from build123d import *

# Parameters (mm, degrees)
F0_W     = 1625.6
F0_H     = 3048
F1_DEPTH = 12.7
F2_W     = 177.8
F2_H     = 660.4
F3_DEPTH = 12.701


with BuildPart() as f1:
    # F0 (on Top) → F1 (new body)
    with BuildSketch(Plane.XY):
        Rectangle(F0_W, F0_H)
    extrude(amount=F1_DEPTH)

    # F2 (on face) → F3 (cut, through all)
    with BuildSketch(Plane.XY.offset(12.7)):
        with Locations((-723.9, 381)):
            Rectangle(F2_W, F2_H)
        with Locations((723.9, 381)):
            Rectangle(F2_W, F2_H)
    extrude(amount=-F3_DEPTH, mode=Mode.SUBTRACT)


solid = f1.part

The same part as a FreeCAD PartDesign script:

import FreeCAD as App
import Part
import Sketcher
from FreeCAD import Vector
Q = App.Units.Quantity

doc = App.newDocument("Part")
params = doc.addObject("Spreadsheet::Sheet", "Params")
for row, (alias, value) in enumerate([
    ("sketch1_width", "64 in"),
    ("sketch1_height", "120 in"),
    ("pad1_length", "0.5 in"),
    ("sketch2_width", "7 in"),
    ("sketch2_height", "26 in"),
], start=1):
    params.set(f"A{row}", alias)
    params.set(f"B{row}", "=" + value)
    params.setAlias(f"B{row}", alias)

body = doc.addObject("PartDesign::Body", "Body")

# Sketch on XY plane
sketch1 = body.newObject("Sketcher::SketchObject", "Sketch")
sketch1.AttachmentSupport = (doc.getObject("XY_Plane"), [""])
sketch1.MapMode = "FlatFace"
sketch1.addGeometry([
    Part.LineSegment(Vector(-812.8, 1524, 0), Vector(-812.8, -1524, 0)),
    Part.LineSegment(Vector(-812.8, -1524, 0), Vector(812.8, -1524, 0)),
    Part.LineSegment(Vector(812.8, -1524, 0), Vector(812.8, 1524, 0)),
    Part.LineSegment(Vector(812.8, 1524, 0), Vector(-812.8, 1524, 0)),
], False)
sketch1.addConstraint([
    Sketcher.Constraint("Coincident", 0, 2, 1, 1),
    Sketcher.Constraint("Coincident", 1, 2, 2, 1),
    Sketcher.Constraint("Coincident", 2, 2, 3, 1),
    Sketcher.Constraint("Coincident", 3, 2, 0, 1),
    Sketcher.Constraint("Vertical", 0),
    Sketcher.Constraint("Horizontal", 1),
    Sketcher.Constraint("Vertical", 2),
    Sketcher.Constraint("Horizontal", 3),
    Sketcher.Constraint("Symmetric", 0, 2, 2, 2, -1, 1),
    Sketcher.Constraint("DistanceX", 1, 1, 1, 2, Q("64 in")),
    Sketcher.Constraint("DistanceY", 0, 2, 0, 1, Q("120 in")),
])
sketch1.setExpression("Constraints[9]", "Params.sketch1_width")
sketch1.setExpression("Constraints[10]", "Params.sketch1_height")
pad1 = body.newObject("PartDesign::Pad", "Pad")
pad1.Profile = sketch1
pad1.setExpression("Length", "Params.pad1_length")

# Sketch on XY plane
sketch2 = body.newObject("Sketcher::SketchObject", "Sketch001")
sketch2.AttachmentSupport = (doc.getObject("XY_Plane"), [""])
sketch2.MapMode = "FlatFace"
sketch2.AttachmentOffset = App.Placement(Vector(0, 0, 0.5 * 25.4), App.Rotation())
sketch2.addGeometry([
    Part.LineSegment(Vector(-812.8, 711.2, 0), Vector(-812.8, 50.8, 0)),  # 0
    Part.LineSegment(Vector(-812.8, 50.8, 0), Vector(-635, 50.8, 0)),  # 1
    Part.LineSegment(Vector(-635, 50.8, 0), Vector(-635, 711.2, 0)),  # 2
    Part.LineSegment(Vector(-635, 711.2, 0), Vector(-812.8, 711.2, 0)),  # 3
    Part.LineSegment(Vector(635, 711.2, 0), Vector(635, 50.8, 0)),  # 4
    Part.LineSegment(Vector(635, 50.8, 0), Vector(812.8, 50.8, 0)),  # 5
    Part.LineSegment(Vector(812.8, 50.8, 0), Vector(812.8, 711.2, 0)),  # 6
    Part.LineSegment(Vector(812.8, 711.2, 0), Vector(635, 711.2, 0)),  # 7
], False)
sketch2.addConstraint([
    Sketcher.Constraint("Coincident", 0, 2, 1, 1),
    Sketcher.Constraint("Coincident", 1, 2, 2, 1),
    Sketcher.Constraint("Coincident", 2, 2, 3, 1),
    Sketcher.Constraint("Coincident", 3, 2, 0, 1),
    Sketcher.Constraint("Coincident", 4, 2, 5, 1),
    Sketcher.Constraint("Coincident", 5, 2, 6, 1),
    Sketcher.Constraint("Coincident", 6, 2, 7, 1),
    Sketcher.Constraint("Coincident", 7, 2, 4, 1),
    Sketcher.Constraint("Vertical", 0),
    Sketcher.Constraint("Horizontal", 1),
    Sketcher.Constraint("Vertical", 2),
    Sketcher.Constraint("Horizontal", 3),
    Sketcher.Constraint("Vertical", 4),
    Sketcher.Constraint("Horizontal", 5),
    Sketcher.Constraint("Vertical", 6),
    Sketcher.Constraint("Horizontal", 7),
    Sketcher.Constraint("Symmetric", 1, 2, 4, 2, -2),
    Sketcher.Constraint("Symmetric", 3, 2, 6, 2, -2),
    Sketcher.Constraint("DistanceX", 1, 1, 1, 2, Q("7 in")),
    Sketcher.Constraint("DistanceY", 0, 2, 0, 1, Q("26 in")),
    Sketcher.Constraint("DistanceX", 0, 2, -1, 1, Q("32 in")),
    Sketcher.Constraint("DistanceY", -1, 1, 0, 2, Q("2 in")),
])
sketch2.setExpression("Constraints[18]", "Params.sketch2_width")
sketch2.setExpression("Constraints[19]", "Params.sketch2_height")
pocket1 = body.newObject("PartDesign::Pocket", "Pocket")
pocket1.Profile = sketch2
pocket1.Type = "ThroughAll"

doc.recompute()
